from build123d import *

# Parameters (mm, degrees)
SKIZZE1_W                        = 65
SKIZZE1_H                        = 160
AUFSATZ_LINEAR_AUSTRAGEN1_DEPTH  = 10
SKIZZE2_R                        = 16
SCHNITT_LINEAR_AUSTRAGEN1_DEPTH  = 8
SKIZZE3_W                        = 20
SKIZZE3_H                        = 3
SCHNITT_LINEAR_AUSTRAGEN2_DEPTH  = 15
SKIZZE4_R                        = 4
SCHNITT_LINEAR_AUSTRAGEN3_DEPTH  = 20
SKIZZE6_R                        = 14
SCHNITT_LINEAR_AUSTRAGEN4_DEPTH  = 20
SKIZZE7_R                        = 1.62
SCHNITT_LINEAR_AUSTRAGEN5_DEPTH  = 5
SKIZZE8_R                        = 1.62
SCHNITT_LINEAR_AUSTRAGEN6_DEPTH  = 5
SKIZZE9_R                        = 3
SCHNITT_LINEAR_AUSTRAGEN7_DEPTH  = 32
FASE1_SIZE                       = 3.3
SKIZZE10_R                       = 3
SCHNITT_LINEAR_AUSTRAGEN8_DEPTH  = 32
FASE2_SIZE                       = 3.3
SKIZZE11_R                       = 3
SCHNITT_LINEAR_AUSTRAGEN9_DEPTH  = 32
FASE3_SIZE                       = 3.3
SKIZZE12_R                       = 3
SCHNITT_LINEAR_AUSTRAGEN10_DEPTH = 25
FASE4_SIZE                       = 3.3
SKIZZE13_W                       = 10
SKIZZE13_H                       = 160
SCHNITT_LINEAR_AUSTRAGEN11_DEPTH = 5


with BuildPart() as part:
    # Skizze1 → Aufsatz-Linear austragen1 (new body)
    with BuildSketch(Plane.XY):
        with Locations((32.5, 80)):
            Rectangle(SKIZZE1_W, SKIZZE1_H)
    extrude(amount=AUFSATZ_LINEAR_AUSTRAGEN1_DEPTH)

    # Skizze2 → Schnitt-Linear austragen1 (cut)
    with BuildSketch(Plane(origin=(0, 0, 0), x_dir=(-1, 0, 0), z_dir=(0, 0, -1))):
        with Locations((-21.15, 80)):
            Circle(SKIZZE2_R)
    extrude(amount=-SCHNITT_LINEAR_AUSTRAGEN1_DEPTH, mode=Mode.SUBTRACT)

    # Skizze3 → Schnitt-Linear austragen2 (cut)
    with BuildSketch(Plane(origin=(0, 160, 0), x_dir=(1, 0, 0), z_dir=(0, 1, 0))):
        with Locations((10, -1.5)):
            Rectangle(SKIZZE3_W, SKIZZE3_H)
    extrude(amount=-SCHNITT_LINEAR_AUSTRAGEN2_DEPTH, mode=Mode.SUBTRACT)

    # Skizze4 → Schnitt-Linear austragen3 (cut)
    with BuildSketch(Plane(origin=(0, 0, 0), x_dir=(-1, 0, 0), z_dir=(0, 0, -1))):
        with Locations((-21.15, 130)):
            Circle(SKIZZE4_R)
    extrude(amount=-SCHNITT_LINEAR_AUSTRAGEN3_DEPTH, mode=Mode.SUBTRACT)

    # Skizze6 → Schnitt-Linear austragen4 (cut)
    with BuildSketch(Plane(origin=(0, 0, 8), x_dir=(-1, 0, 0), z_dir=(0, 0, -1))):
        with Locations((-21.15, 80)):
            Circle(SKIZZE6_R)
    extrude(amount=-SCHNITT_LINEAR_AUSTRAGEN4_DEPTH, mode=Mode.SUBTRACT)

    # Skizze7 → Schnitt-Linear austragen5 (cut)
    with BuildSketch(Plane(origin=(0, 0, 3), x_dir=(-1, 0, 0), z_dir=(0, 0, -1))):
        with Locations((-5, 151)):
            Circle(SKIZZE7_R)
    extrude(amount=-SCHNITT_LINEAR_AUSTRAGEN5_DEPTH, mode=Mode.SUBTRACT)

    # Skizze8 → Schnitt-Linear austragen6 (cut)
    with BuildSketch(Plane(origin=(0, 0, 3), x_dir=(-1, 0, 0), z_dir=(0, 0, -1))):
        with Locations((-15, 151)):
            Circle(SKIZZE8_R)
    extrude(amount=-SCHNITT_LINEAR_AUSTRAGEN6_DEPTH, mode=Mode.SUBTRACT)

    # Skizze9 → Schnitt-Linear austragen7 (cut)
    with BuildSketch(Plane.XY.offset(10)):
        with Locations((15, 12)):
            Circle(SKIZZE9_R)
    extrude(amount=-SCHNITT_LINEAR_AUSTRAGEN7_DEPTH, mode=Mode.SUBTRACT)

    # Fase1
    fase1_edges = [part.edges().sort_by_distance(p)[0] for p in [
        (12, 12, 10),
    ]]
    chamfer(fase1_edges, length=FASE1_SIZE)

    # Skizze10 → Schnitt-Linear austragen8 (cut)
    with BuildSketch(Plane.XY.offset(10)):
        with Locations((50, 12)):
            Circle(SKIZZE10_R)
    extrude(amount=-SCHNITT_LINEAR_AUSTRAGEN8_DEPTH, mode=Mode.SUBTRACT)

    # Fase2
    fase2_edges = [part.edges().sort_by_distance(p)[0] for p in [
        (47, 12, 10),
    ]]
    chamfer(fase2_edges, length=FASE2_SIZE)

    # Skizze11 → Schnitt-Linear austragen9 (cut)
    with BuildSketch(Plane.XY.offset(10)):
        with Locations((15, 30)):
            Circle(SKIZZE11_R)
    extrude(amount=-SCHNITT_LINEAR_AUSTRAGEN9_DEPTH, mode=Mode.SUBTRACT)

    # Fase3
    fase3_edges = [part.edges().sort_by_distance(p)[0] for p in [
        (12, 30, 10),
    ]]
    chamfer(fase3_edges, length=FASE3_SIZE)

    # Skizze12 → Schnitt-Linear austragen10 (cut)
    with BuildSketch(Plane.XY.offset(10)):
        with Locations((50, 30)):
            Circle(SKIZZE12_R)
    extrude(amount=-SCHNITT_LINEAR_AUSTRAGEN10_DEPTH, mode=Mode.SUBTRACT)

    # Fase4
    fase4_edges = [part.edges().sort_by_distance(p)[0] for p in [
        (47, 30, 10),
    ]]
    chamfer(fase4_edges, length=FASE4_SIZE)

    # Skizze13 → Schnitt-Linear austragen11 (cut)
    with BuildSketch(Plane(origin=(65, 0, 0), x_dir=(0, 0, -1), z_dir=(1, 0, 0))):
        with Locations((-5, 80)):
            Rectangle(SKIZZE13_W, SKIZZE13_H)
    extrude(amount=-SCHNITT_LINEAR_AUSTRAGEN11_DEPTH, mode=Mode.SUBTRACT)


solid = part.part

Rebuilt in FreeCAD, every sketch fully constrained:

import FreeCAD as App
import Part
import Sketcher

V = App.Vector


def edges_at(feature, points):
    """Names of the edges that pass closest to the given points."""
    edges = feature.Shape.Edges
    near = lambda p: min(range(len(edges)), key=lambda i: edges[i].distToShape(Part.Vertex(*p))[0])
    return sorted({f"Edge{near(p) + 1}" for p in points})

doc = App.newDocument("Part")
body = doc.addObject("PartDesign::Body", "Body")

# Sketch on XY plane
sketch1 = body.newObject("Sketcher::SketchObject", "Sketch")
sketch1.AttachmentSupport = (doc.getObject("XY_Plane"), [""])
sketch1.MapMode = "FlatFace"
sketch1.addGeometry([
    Part.LineSegment(V(0, 160, 0), V(0, 0, 0)),
    Part.LineSegment(V(0, 0, 0), V(65, 0, 0)),
    Part.LineSegment(V(65, 0, 0), V(65, 160, 0)),
    Part.LineSegment(V(65, 160, 0), V(0, 160, 0)),
], False)
sketch1.addConstraint([
    Sketcher.Constraint("Coincident", 0, 2, 1, 1),
    Sketcher.Constraint("Coincident", 1, 2, 2, 1),
    Sketcher.Constraint("Coincident", 2, 2, 3, 1),
    Sketcher.Constraint("Coincident", 3, 2, 0, 1),
    Sketcher.Constraint("Vertical", 0),
    Sketcher.Constraint("Horizontal", 1),
    Sketcher.Constraint("Vertical", 2),
    Sketcher.Constraint("Horizontal", 3),
    Sketcher.Constraint("Coincident", 0, 2, -1, 1),
    Sketcher.Constraint("DistanceX", 1, 1, 1, 2, 65.0),
    Sketcher.Constraint("DistanceY", 0, 2, 0, 1, 160.0),
])
pad1 = body.newObject("PartDesign::Pad", "Pad")
pad1.Profile = sketch1
pad1.Length = 10

# Sketch on XY plane
sketch2 = body.newObject("Sketcher::SketchObject", "Sketch001")
sketch2.AttachmentSupport = (doc.getObject("XY_Plane"), [""])
sketch2.MapMode = "FlatFace"
sketch2.addGeometry(Part.Circle(V(21, 80, 0), V(0, 0, 1), 16), False)
sketch2.addConstraint([
    Sketcher.Constraint("Diameter", 0, 32.0),
    Sketcher.Constraint("DistanceY", -1, 1, 0, 3, 80.0),
    Sketcher.Constraint("DistanceX", -1, 1, 0, 3, 21.15),
])
pocket1 = body.newObject("PartDesign::Pocket", "Pocket")
pocket1.Profile = sketch2
pocket1.Length = 8
pocket1.Reversed = True

# Sketch on XZ plane
sketch3 = body.newObject("Sketcher::SketchObject", "Sketch002")
sketch3.AttachmentSupport = (doc.getObject("XZ_Plane"), [""])
sketch3.MapMode = "FlatFace"
sketch3.AttachmentOffset = App.Placement(V(0, 0, -160), App.Rotation())
sketch3.addGeometry([
    Part.LineSegment(V(0, 0, 0), V(0, 3, 0)),
    Part.LineSegment(V(0, 3, 0), V(20, 3, 0)),
    Part.LineSegment(V(20, 3, 0), V(20, 0, 0)),
    Part.LineSegment(V(20, 0, 0), V(0, 0, 0)),
], False)
sketch3.addConstraint([
    Sketcher.Constraint("Coincident", 0, 2, 1, 1),
    Sketcher.Constraint("Coincident", 1, 2, 2, 1),
    Sketcher.Constraint("Coincident", 2, 2, 3, 1),
    Sketcher.Constraint("Coincident", 3, 2, 0, 1),
    Sketcher.Constraint("Vertical", 0),
    Sketcher.Constraint("Horizontal", 1),
    Sketcher.Constraint("Vertical", 2),
    Sketcher.Constraint("Horizontal", 3),
    Sketcher.Constraint("Coincident", 3, 2, -1, 1),
    Sketcher.Constraint("DistanceX", 1, 1, 1, 2, 20.0),
    Sketcher.Constraint("DistanceY", 0, 1, 0, 2, 3.0),
])
pocket2 = body.newObject("PartDesign::Pocket", "Pocket001")
pocket2.Profile = sketch3
pocket2.Length = 15
pocket2.Reversed = True

# Sketch on XY plane
sketch4 = body.newObject("Sketcher::SketchObject", "Sketch003")
sketch4.AttachmentSupport = (doc.getObject("XY_Plane"), [""])
sketch4.MapMode = "FlatFace"
sketch4.addGeometry(Part.Circle(V(21.1, 130, 0), V(0, 0, 1), 4), False)
sketch4.addConstraint([
    Sketcher.Constraint("Diameter", 0, 8.0),
    Sketcher.Constraint("DistanceY", -1, 1, 0, 3, 130.0),
    Sketcher.Constraint("DistanceX", -1, 1, 0, 3, 21.15),
])
pocket3 = body.newObject("PartDesign::Pocket", "Pocket002")
pocket3.Profile = sketch4
pocket3.Length = 20
pocket3.Reversed = True

# Sketch on XY plane
sketch5 = body.newObject("Sketcher::SketchObject", "Sketch004")
sketch5.AttachmentSupport = (doc.getObject("XY_Plane"), [""])
sketch5.MapMode = "FlatFace"
sketch5.AttachmentOffset = App.Placement(V(0, 0, 8), App.Rotation())
sketch5.addGeometry(Part.Circle(V(21, 80, 0), V(0, 0, 1), 14), False)
sketch5.addConstraint([
    Sketcher.Constraint("Diameter", 0, 28.0),
    Sketcher.Constraint("DistanceY", -1, 1, 0, 3, 80.0),
    Sketcher.Constraint("DistanceX", -1, 1, 0, 3, 21.15),
])
pocket4 = body.newObject("PartDesign::Pocket", "Pocket003")
pocket4.Profile = sketch5
pocket4.Length = 20
pocket4.Reversed = True

# Sketch on XY plane
sketch6 = body.newObject("Sketcher::SketchObject", "Sketch005")
sketch6.AttachmentSupport = (doc.getObject("XY_Plane"), [""])
sketch6.MapMode = "FlatFace"
sketch6.AttachmentOffset = App.Placement(V(0, 0, 3), App.Rotation())
sketch6.addGeometry(Part.Circle(V(5, 151, 0), V(0, 0, 1), 1.6), False)
sketch6.addConstraint([
    Sketcher.Constraint("Diameter", 0, 3.24),
    Sketcher.Constraint("DistanceX", -1, 1, 0, 3, 5.0),
    Sketcher.Constraint("DistanceY", -1, 1, 0, 3, 151.0),
])
pocket5 = body.newObject("PartDesign::Pocket", "Pocket004")
pocket5.Profile = sketch6
pocket5.Length = 5
pocket5.Reversed = True

# Sketch on XY plane
sketch7 = body.newObject("Sketcher::SketchObject", "Sketch006")
sketch7.AttachmentSupport = (doc.getObject("XY_Plane"), [""])
sketch7.MapMode = "FlatFace"
sketch7.AttachmentOffset = App.Placement(V(0, 0, 3), App.Rotation())
sketch7.addGeometry(Part.Circle(V(15, 151, 0), V(0, 0, 1), 1.6), False)
sketch7.addConstraint([
    Sketcher.Constraint("Diameter", 0, 3.24),
    Sketcher.Constraint("DistanceX", -1, 1, 0, 3, 15.0),
    Sketcher.Constraint("DistanceY", -1, 1, 0, 3, 151.0),
])
pocket6 = body.newObject("PartDesign::Pocket", "Pocket005")
pocket6.Profile = sketch7
pocket6.Length = 5
pocket6.Reversed = True

# Sketch on XY plane
sketch8 = body.newObject("Sketcher::SketchObject", "Sketch007")
sketch8.AttachmentSupport = (doc.getObject("XY_Plane"), [""])
sketch8.MapMode = "FlatFace"
sketch8.AttachmentOffset = App.Placement(V(0, 0, 10), App.Rotation())
sketch8.addGeometry(Part.Circle(V(15, 12, 0), V(0, 0, 1), 3), False)
sketch8.addConstraint([
    Sketcher.Constraint("Diameter", 0, 6.0),
    Sketcher.Constraint("DistanceX", -1, 1, 0, 3, 15.0),
    Sketcher.Constraint("DistanceY", -1, 1, 0, 3, 12.0),
])
pocket7 = body.newObject("PartDesign::Pocket", "Pocket006")
pocket7.Profile = sketch8
pocket7.Length = 32
doc.recompute()

chamfer = body.newObject("PartDesign::Chamfer", "Chamfer")
chamfer.Base = (pocket7, edges_at(pocket7, [(12, 12, 10)]))
chamfer.Size = 3.3

# Sketch on XY plane
sketch9 = body.newObject("Sketcher::SketchObject", "Sketch008")
sketch9.AttachmentSupport = (doc.getObject("XY_Plane"), [""])
sketch9.MapMode = "FlatFace"
sketch9.AttachmentOffset = App.Placement(V(0, 0, 10), App.Rotation())
sketch9.addGeometry(Part.Circle(V(50, 12, 0), V(0, 0, 1), 3), False)
sketch9.addConstraint([
    Sketcher.Constraint("Diameter", 0, 6.0),
    Sketcher.Constraint("DistanceX", -1, 1, 0, 3, 50.0),
    Sketcher.Constraint("DistanceY", -1, 1, 0, 3, 12.0),
])
pocket8 = body.newObject("PartDesign::Pocket", "Pocket007")
pocket8.Profile = sketch9
pocket8.Length = 32
doc.recompute()

chamfer2 = body.newObject("PartDesign::Chamfer", "Chamfer001")
chamfer2.Base = (pocket8, edges_at(pocket8, [(47, 12, 10)]))
chamfer2.Size = 3.3

# Sketch on XY plane
sketch10 = body.newObject("Sketcher::SketchObject", "Sketch009")
sketch10.AttachmentSupport = (doc.getObject("XY_Plane"), [""])
sketch10.MapMode = "FlatFace"
sketch10.AttachmentOffset = App.Placement(V(0, 0, 10), App.Rotation())
sketch10.addGeometry(Part.Circle(V(15, 30, 0), V(0, 0, 1), 3), False)
sketch10.addConstraint([
    Sketcher.Constraint("Diameter", 0, 6.0),
    Sketcher.Constraint("DistanceX", -1, 1, 0, 3, 15.0),
    Sketcher.Constraint("DistanceY", -1, 1, 0, 3, 30.0),
])
pocket9 = body.newObject("PartDesign::Pocket", "Pocket008")
pocket9.Profile = sketch10
pocket9.Length = 32
doc.recompute()

chamfer3 = body.newObject("PartDesign::Chamfer", "Chamfer002")
chamfer3.Base = (pocket9, edges_at(pocket9, [(12, 30, 10)]))
chamfer3.Size = 3.3

# Sketch on XY plane
sketch11 = body.newObject("Sketcher::SketchObject", "Sketch010")
sketch11.AttachmentSupport = (doc.getObject("XY_Plane"), [""])
sketch11.MapMode = "FlatFace"
sketch11.AttachmentOffset = App.Placement(V(0, 0, 10), App.Rotation())
sketch11.addGeometry(Part.Circle(V(50, 30, 0), V(0, 0, 1), 3), False)
sketch11.addConstraint([
    Sketcher.Constraint("Diameter", 0, 6.0),
    Sketcher.Constraint("DistanceX", -1, 1, 0, 3, 50.0),
    Sketcher.Constraint("DistanceY", -1, 1, 0, 3, 30.0),
])
pocket10 = body.newObject("PartDesign::Pocket", "Pocket009")
pocket10.Profile = sketch11
pocket10.Length = 25
doc.recompute()

chamfer4 = body.newObject("PartDesign::Chamfer", "Chamfer003")
chamfer4.Base = (pocket10, edges_at(pocket10, [(47, 30, 10)]))
chamfer4.Size = 3.3

# Sketch on YZ plane
sketch12 = body.newObject("Sketcher::SketchObject", "Sketch011")
sketch12.AttachmentSupport = (doc.getObject("YZ_Plane"), [""])
sketch12.MapMode = "FlatFace"
sketch12.AttachmentOffset = App.Placement(V(0, 0, 65), App.Rotation())
sketch12.addGeometry([
    Part.LineSegment(V(160, 10, 0), V(0, 10, 0)),
    Part.LineSegment(V(0, 10, 0), V(0, 0, 0)),
    Part.LineSegment(V(0, 0, 0), V(160, 0, 0)),
    Part.LineSegment(V(160, 0, 0), V(160, 10, 0)),
], False)
sketch12.addConstraint([
    Sketcher.Constraint("Coincident", 0, 2, 1, 1),
    Sketcher.Constraint("Coincident", 1, 2, 2, 1),
    Sketcher.Constraint("Coincident", 2, 2, 3, 1),
    Sketcher.Constraint("Coincident", 3, 2, 0, 1),
    Sketcher.Constraint("Horizontal", 0),
    Sketcher.Constraint("Vertical", 1),
    Sketcher.Constraint("Horizontal", 2),
    Sketcher.Constraint("Vertical", 3),
    Sketcher.Constraint("Coincident", 1, 2, -1, 1),
    Sketcher.Constraint("DistanceX", 0, 2, 0, 1, 160.0),
    Sketcher.Constraint("DistanceY", 1, 2, 1, 1, 10.0),
])
pocket11 = body.newObject("PartDesign::Pocket", "Pocket010")
pocket11.Profile = sketch12
pocket11.Length = 5

doc.recompute()
